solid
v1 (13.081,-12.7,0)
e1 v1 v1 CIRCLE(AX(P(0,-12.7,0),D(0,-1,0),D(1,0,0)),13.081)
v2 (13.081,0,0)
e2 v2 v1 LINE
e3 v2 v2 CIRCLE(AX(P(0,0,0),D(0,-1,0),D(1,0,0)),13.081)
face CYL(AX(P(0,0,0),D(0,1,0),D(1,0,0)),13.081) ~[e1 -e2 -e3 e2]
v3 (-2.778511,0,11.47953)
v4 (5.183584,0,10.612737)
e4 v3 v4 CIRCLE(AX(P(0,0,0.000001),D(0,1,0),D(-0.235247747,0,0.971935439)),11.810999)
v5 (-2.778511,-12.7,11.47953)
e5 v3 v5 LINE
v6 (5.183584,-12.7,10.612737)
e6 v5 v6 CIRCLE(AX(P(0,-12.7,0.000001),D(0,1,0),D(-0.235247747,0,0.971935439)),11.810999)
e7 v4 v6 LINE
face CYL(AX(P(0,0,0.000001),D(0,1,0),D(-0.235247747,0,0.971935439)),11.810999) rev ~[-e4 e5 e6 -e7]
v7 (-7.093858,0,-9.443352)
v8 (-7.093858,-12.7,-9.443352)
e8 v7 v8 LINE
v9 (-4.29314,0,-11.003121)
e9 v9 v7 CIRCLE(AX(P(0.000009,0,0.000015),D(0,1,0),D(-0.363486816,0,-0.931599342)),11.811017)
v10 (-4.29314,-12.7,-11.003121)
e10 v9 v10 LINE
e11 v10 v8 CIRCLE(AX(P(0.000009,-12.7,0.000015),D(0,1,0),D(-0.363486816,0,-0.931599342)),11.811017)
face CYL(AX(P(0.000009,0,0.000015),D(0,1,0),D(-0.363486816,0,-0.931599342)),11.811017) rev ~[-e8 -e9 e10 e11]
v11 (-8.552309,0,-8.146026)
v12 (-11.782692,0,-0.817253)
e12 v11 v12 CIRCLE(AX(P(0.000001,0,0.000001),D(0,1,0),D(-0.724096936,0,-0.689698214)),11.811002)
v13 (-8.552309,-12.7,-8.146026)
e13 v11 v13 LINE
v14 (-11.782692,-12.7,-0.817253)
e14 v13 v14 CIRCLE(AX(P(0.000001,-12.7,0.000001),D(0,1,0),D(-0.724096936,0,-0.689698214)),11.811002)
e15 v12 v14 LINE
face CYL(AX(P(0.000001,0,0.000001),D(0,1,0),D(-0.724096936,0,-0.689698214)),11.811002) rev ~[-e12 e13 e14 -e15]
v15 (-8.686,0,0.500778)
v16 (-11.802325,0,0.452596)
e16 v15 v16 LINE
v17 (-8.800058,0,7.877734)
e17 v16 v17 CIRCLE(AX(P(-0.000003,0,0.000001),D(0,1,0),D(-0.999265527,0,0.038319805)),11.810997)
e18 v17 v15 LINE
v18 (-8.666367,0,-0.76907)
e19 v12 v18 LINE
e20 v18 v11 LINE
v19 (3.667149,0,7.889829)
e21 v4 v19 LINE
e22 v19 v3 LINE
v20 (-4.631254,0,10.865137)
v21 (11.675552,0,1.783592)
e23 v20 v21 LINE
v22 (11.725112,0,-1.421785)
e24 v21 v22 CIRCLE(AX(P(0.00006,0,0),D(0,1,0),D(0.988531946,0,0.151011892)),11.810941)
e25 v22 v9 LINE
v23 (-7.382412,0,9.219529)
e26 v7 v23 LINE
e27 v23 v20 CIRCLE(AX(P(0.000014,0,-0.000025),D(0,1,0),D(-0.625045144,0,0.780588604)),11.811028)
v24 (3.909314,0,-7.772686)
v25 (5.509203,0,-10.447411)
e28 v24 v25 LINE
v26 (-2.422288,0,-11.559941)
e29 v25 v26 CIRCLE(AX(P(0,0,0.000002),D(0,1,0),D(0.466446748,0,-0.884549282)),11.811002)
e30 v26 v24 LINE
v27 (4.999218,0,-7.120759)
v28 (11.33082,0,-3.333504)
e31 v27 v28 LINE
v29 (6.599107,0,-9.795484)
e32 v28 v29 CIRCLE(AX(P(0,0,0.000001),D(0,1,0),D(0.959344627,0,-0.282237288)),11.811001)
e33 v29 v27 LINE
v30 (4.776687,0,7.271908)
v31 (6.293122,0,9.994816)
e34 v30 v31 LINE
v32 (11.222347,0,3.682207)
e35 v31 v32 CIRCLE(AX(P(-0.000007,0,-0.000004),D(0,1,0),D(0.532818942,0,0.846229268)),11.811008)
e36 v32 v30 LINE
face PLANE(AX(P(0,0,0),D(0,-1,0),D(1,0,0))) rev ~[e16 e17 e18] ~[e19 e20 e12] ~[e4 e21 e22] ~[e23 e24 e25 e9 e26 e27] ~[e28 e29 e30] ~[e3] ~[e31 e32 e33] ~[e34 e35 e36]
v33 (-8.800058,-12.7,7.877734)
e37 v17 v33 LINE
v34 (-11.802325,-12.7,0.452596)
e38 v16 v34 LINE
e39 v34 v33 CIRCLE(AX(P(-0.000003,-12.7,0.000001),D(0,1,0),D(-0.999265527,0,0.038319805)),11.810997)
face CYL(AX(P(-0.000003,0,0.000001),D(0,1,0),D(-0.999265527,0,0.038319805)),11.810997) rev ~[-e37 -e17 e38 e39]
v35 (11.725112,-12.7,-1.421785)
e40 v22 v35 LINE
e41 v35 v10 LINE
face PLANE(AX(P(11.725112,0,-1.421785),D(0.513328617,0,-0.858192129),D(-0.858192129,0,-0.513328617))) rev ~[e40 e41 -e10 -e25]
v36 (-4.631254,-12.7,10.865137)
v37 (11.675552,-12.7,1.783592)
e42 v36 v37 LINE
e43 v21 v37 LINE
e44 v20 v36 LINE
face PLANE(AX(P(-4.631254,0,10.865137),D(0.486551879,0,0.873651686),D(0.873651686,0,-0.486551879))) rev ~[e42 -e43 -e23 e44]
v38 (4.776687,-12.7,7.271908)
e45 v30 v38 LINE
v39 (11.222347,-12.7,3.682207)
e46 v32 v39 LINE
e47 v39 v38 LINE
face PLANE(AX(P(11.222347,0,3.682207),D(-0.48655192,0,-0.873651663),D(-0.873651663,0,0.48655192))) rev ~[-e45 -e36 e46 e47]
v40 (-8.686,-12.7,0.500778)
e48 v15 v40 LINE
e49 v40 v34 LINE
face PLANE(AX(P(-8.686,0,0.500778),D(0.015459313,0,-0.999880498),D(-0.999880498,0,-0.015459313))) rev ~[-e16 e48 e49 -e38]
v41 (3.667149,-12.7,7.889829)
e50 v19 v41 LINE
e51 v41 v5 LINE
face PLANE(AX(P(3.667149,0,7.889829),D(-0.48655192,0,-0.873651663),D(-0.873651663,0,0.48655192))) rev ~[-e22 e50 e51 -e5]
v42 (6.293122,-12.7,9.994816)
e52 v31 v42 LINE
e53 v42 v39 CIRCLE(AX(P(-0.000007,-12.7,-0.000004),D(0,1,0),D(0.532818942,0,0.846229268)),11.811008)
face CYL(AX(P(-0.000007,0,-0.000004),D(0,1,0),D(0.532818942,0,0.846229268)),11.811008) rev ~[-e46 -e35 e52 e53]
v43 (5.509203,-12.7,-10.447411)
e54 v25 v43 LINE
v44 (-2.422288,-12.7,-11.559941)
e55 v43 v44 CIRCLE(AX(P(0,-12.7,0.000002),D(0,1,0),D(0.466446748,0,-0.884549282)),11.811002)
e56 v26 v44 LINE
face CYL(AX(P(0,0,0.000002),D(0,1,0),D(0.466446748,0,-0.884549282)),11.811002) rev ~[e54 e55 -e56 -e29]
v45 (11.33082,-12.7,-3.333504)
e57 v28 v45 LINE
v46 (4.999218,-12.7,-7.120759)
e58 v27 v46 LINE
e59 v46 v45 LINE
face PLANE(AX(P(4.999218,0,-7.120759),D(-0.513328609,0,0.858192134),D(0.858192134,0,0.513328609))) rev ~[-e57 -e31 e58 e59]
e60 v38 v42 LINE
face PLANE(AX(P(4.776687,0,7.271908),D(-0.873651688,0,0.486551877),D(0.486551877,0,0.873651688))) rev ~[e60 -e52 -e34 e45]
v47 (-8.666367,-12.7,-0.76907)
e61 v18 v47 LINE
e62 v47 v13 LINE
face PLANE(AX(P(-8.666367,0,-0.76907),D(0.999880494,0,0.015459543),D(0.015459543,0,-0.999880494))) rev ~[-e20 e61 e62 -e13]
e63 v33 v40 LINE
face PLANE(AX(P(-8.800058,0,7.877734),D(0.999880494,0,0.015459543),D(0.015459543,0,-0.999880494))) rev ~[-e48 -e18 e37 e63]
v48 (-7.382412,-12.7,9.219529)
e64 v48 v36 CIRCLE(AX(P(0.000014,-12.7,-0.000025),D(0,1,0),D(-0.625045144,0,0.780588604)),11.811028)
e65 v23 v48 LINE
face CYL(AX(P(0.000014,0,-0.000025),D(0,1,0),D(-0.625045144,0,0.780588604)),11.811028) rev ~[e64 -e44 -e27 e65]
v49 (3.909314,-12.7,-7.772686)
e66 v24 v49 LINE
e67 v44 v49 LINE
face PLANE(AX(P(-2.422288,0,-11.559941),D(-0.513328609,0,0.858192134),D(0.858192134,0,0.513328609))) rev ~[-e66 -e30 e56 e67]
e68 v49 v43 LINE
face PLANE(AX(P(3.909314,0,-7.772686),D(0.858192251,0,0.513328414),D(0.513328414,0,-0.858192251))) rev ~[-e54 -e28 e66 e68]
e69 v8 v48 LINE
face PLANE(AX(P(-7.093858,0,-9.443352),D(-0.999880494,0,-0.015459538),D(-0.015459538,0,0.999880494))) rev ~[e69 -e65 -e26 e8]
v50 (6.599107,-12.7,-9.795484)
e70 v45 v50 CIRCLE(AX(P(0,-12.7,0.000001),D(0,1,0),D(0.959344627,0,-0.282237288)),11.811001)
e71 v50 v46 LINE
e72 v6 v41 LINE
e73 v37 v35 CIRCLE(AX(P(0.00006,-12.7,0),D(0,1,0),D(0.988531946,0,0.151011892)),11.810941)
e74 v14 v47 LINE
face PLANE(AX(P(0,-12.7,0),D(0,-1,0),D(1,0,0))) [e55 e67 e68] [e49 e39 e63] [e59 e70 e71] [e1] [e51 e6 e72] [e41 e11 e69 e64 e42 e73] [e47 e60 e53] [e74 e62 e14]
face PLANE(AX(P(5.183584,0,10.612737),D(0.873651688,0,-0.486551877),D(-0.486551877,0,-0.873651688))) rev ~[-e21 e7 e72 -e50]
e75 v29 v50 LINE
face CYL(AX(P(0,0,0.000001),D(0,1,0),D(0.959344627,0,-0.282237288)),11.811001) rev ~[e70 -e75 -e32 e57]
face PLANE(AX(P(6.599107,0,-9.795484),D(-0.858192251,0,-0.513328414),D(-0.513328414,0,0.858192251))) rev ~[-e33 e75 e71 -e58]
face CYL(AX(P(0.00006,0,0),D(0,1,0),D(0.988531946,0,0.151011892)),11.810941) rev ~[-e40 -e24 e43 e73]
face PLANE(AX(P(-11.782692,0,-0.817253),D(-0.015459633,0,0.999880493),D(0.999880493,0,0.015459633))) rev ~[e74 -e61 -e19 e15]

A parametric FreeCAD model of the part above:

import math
import FreeCAD as App
import Part
import Sketcher

V = App.Vector
Q = App.Units.Quantity

doc = App.newDocument("Part")
params = doc.addObject("Spreadsheet::Sheet", "Params")
for row, (alias, value) in enumerate([
    ("sketch1_diameter", "1.03 in"),
    ("sketch1_radius", "0.4650001 in"),
    ("sketch1_radius2", "0.4649999 in"),
    ("pad1_length", "0.5 in"),
], start=1):
    params.set(f"A{row}", alias)
    params.set(f"B{row}", "=" + value)
    params.setAlias(f"B{row}", alias)

body = doc.addObject("PartDesign::Body", "Body")

# Sketch on XZ plane
sketch1 = body.newObject("Sketcher::SketchObject", "Sketch")
sketch1.AttachmentSupport = (doc.getObject("XZ_Plane"), [""])
sketch1.MapMode = "FlatFace"
sketch1.addGeometry(Part.Circle(V(0, 0, 0), V(0, 0, 1), 13.1), False)
sketch1.addGeometry(Part.ArcOfCircle(Part.Circle(V(0, 0, 0), V(0, 0, 1), 11.8), math.radians(-176), math.radians(-136)), False)
sketch1.addGeometry(Part.LineSegment(V(-11.8, -0.8, 0), V(-8.7, -0.8, 0)), False)
sketch1.addGeometry(Part.LineSegment(V(-8.7, -0.8, 0), V(-8.6, -8.1, 0)), False)
sketch1.addGeometry(Part.LineSegment(V(3.9, -7.8, 0), V(5.5, -10.4, 0)), False)
sketch1.addGeometry(Part.ArcOfCircle(Part.Circle(V(0, 0, 0), V(0, 0, 1), 11.8), math.radians(-102), math.radians(-62)), False)
sketch1.addGeometry(Part.LineSegment(V(-2.4, -11.6, 0), V(3.9, -7.8, 0)), False)
sketch1.addGeometry(Part.ArcOfCircle(Part.Circle(V(0, 0, 0), V(0, 0, 1), 11.8), math.radians(-56), math.radians(-16)), False)
sketch1.addGeometry(Part.LineSegment(V(6.6, -9.8, 0), V(5, -7.1, 0)), False)
sketch1.addGeometry(Part.LineSegment(V(5, -7.1, 0), V(11.3, -3.3, 0)), False)
sketch1.addGeometry(Part.LineSegment(V(-4.6, 10.9, 0), V(11.7, 1.8, 0)), False)
sketch1.addGeometry(Part.ArcOfCircle(Part.Circle(V(0, 0, 0), V(0, 0, 1), 11.8), math.radians(-6.91), math.radians(8.69)), False)
sketch1.addGeometry(Part.LineSegment(V(11.7, -1.4, 0), V(-4.3, -11, 0)), False)
sketch1.addGeometry(Part.ArcOfCircle(Part.Circle(V(0, 0, 0), V(0, 0, 1), 11.8), math.radians(-126.91), math.radians(-111.31)), False)
sketch1.addGeometry(Part.LineSegment(V(-7.1, -9.4, 0), V(-7.4, 9.2, 0)), False)
sketch1.addGeometry(Part.ArcOfCircle(Part.Circle(V(0, 0, 0), V(0, 0, 1), 11.8), math.radians(113.09), math.radians(128.69)), False)
sketch1.addGeometry(Part.LineSegment(V(-8.7, 0.5, 0), V(-11.8, 0.5, 0)), False)
sketch1.addGeometry(Part.ArcOfCircle(Part.Circle(V(0, 0, 0), V(0, 0, 1), 11.8), math.radians(138), math.radians(178)), False)
sketch1.addGeometry(Part.LineSegment(V(-8.8, 7.9, 0), V(-8.7, 0.5, 0)), False)
sketch1.addGeometry(Part.ArcOfCircle(Part.Circle(V(0, 0, 0), V(0, 0, 1), 11.8), math.radians(64), math.radians(104)), False)
sketch1.addGeometry(Part.LineSegment(V(5.2, 10.6, 0), V(3.7, 7.9, 0)), False)
sketch1.addGeometry(Part.LineSegment(V(3.7, 7.9, 0), V(-2.8, 11.5, 0)), False)
sketch1.addGeometry(Part.LineSegment(V(4.8, 7.3, 0), V(6.3, 10, 0)), False)
sketch1.addGeometry(Part.ArcOfCircle(Part.Circle(V(0, 0, 0), V(0, 0, 1), 11.8), math.radians(18), math.radians(58)), False)
sketch1.addGeometry(Part.LineSegment(V(11.2, 3.7, 0), V(4.8, 7.3, 0)), False)
sketch1.addConstraint(Sketcher.Constraint("Coincident", 1, 1, 2, 1))
sketch1.addConstraint(Sketcher.Constraint("Coincident", 2, 2, 3, 1))
sketch1.addConstraint(Sketcher.Constraint("Coincident", 3, 2, 1, 2))
sketch1.addConstraint(Sketcher.Constraint("Coincident", 4, 2, 5, 2))
sketch1.addConstraint(Sketcher.Constraint("Coincident", 5, 1, 6, 1))
sketch1.addConstraint(Sketcher.Constraint("Coincident", 6, 2, 4, 1))
sketch1.addConstraint(Sketcher.Constraint("Coincident", 7, 1, 8, 1))
sketch1.addConstraint(Sketcher.Constraint("Coincident", 8, 2, 9, 1))
sketch1.addConstraint(Sketcher.Constraint("Coincident", 9, 2, 7, 2))
sketch1.addConstraint(Sketcher.Constraint("Coincident", 10, 2, 11, 2))
sketch1.addConstraint(Sketcher.Constraint("Coincident", 11, 1, 12, 1))
sketch1.addConstraint(Sketcher.Constraint("Coincident", 12, 2, 13, 2))
sketch1.addConstraint(Sketcher.Constraint("Coincident", 13, 1, 14, 1))
sketch1.addConstraint(Sketcher.Constraint("Coincident", 14, 2, 15, 2))
sketch1.addConstraint(Sketcher.Constraint("Coincident", 15, 1, 10, 1))
sketch1.addConstraint(Sketcher.Constraint("Coincident", 16, 2, 17, 2))
sketch1.addConstraint(Sketcher.Constraint("Coincident", 17, 1, 18, 1))
sketch1.addConstraint(Sketcher.Constraint("Coincident", 18, 2, 16, 1))
sketch1.addConstraint(Sketcher.Constraint("Coincident", 19, 1, 20, 1))
sketch1.addConstraint(Sketcher.Constraint("Coincident", 20, 2, 21, 1))
sketch1.addConstraint(Sketcher.Constraint("Coincident", 21, 2, 19, 2))
sketch1.addConstraint(Sketcher.Constraint("Coincident", 22, 2, 23, 2))
sketch1.addConstraint(Sketcher.Constraint("Coincident", 23, 1, 24, 1))
sketch1.addConstraint(Sketcher.Constraint("Coincident", 24, 2, 22, 1))
sketch1.addConstraint(Sketcher.Constraint("Coincident", 0, 3, -1, 1))
sketch1.addConstraint(Sketcher.Constraint("Coincident", 1, 3, -1, 1))
sketch1.addConstraint(Sketcher.Constraint("Coincident", 5, 3, -1, 1))
sketch1.addConstraint(Sketcher.Constraint("Coincident", 7, 3, -1, 1))
sketch1.addConstraint(Sketcher.Constraint("Coincident", 17, 3, -1, 1))
sketch1.addConstraint(Sketcher.Constraint("Coincident", 19, 3, -1, 1))
sketch1.addConstraint(Sketcher.Constraint("Coincident", 23, 3, -1, 1))
sketch1.addConstraint(Sketcher.Constraint("Equal", 1, 5))
sketch1.addConstraint(Sketcher.Constraint("Equal", 5, 7))
sketch1.addConstraint(Sketcher.Constraint("Equal", 7, 19))
sketch1.addConstraint(Sketcher.Constraint("PointOnObject", 11, 3, -1))
sketch1.addConstraint(Sketcher.Constraint("Perpendicular", 2, 3))
sketch1.addConstraint(Sketcher.Constraint("Perpendicular", 4, 6))
sketch1.addConstraint(Sketcher.Constraint("Perpendicular", 6, 8))
sketch1.addConstraint(Sketcher.Constraint("Perpendicular", 8, 9))
sketch1.addConstraint(Sketcher.Constraint("Parallel", 9, 12))
sketch1.addConstraint(Sketcher.Constraint("Parallel", 3, 14))
sketch1.addConstraint(Sketcher.Constraint("Perpendicular", 14, 16))
sketch1.addConstraint(Sketcher.Constraint("Perpendicular", 16, 18))
sketch1.addConstraint(Sketcher.Constraint("Perpendicular", 10, 20))
sketch1.addConstraint(Sketcher.Constraint("Perpendicular", 20, 21))
sketch1.addConstraint(Sketcher.Constraint("Perpendicular", 21, 22))
sketch1.addConstraint(Sketcher.Constraint("Perpendicular", 22, 24))
sketch1.addConstraint(Sketcher.Constraint("Equal", 2, 4))
sketch1.addConstraint(Sketcher.Constraint("Equal", 3, 6))
sketch1.addConstraint(Sketcher.Constraint("Equal", 4, 8))
sketch1.addConstraint(Sketcher.Constraint("Equal", 6, 9))
sketch1.addConstraint(Sketcher.Constraint("Equal", 10, 12))
sketch1.addConstraint(Sketcher.Constraint("Equal", 12, 14))
sketch1.addConstraint(Sketcher.Constraint("Equal", 8, 16))
sketch1.addConstraint(Sketcher.Constraint("Equal", 9, 18))
sketch1.addConstraint(Sketcher.Constraint("Equal", 16, 20))
sketch1.addConstraint(Sketcher.Constraint("Equal", 18, 21))
sketch1.addConstraint(Sketcher.Constraint("Equal", 20, 22))
sketch1.addConstraint(Sketcher.Constraint("Equal", 21, 24))
sketch1.addConstraint(Sketcher.Constraint("Diameter", 0, Q("1.03 in")))
sketch1.addConstraint(Sketcher.Constraint("Radius", 1, Q("0.4650001 in")))
sketch1.addConstraint(Sketcher.Constraint("Radius", 17, Q("0.4649999 in")))
sketch1.addConstraint(Sketcher.Constraint("Radius", 11, 11.810941))
sketch1.addConstraint(Sketcher.Constraint("Radius", 15, 11.811028))
sketch1.addConstraint(Sketcher.Constraint("Radius", 13, 11.811017))
sketch1.addConstraint(Sketcher.Constraint("Radius", 23, 11.811008))
sketch1.addConstraint(Sketcher.Constraint("DistanceX", 18, 2, -1, 1, 8.686))
sketch1.addConstraint(Sketcher.Constraint("DistanceY", 3, 2, 15, 3, 8.146001))
sketch1.addConstraint(Sketcher.Constraint("DistanceX", 1, 3, 4, 2, 5.509202))
sketch1.addConstraint(Sketcher.Constraint("DistanceX", 5, 1, 15, 3, 2.422302))
sketch1.addConstraint(Sketcher.Constraint("DistanceX", 15, 3, 6, 2, 3.9093))
sketch1.addConstraint(Sketcher.Constraint("DistanceY", 7, 1, 11, 1, 8.373699))
sketch1.addConstraint(Sketcher.Constraint("DistanceY", 13, 1, 1, 1, 8.626099))
sketch1.addConstraint(Sketcher.Constraint("DistanceY", 2, 2, 14, 2, 9.988599))
sketch1.addConstraint(Sketcher.Constraint("DistanceY", 19, 1, 15, 1, 0.2524))
sketch1.addConstraint(Sketcher.Constraint("DistanceX", 14, 2, 21, 2, 4.603901))
sketch1.addConstraint(Sketcher.Constraint("DistanceY", 14, 2, 21, 2, 2.260001))
sketch1.setExpression("Constraints[59]", "Params.sketch1_diameter")
sketch1.setExpression("Constraints[60]", "Params.sketch1_radius")
sketch1.setExpression("Constraints[61]", "Params.sketch1_radius2")
pad1 = body.newObject("PartDesign::Pad", "Pad")
pad1.Profile = sketch1
pad1.setExpression("Length", "Params.pad1_length")

doc.recompute()
